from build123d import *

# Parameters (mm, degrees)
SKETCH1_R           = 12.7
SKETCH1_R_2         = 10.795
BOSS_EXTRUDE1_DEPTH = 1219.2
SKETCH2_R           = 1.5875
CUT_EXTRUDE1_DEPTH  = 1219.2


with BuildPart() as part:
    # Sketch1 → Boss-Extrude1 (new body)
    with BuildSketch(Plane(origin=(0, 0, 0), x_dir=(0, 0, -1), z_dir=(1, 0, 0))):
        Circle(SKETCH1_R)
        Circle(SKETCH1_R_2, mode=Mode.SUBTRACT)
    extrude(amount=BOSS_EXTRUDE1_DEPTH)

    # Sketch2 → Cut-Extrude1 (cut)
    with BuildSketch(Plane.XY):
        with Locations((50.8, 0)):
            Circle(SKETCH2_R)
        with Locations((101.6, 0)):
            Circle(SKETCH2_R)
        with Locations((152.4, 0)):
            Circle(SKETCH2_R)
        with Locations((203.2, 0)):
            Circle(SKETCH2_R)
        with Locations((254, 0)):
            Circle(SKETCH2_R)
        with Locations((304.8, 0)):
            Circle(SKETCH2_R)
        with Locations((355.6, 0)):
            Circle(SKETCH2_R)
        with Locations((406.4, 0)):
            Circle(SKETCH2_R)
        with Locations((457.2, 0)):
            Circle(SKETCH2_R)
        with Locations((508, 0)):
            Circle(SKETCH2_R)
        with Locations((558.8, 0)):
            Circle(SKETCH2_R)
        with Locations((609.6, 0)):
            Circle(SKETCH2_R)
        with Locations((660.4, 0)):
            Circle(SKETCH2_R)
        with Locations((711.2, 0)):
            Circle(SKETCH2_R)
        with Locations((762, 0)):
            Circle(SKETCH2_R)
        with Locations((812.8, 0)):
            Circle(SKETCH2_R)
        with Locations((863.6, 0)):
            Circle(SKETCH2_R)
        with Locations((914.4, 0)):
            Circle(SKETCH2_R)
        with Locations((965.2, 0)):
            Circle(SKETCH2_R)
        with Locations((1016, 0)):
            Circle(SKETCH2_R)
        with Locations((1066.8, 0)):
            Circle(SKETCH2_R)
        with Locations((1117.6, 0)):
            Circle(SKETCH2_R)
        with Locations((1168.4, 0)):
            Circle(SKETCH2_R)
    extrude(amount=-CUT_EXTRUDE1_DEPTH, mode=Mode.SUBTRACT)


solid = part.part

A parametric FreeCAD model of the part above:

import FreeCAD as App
import Part
import Sketcher
Q = App.Units.Quantity

doc = App.newDocument("Part")
params = doc.addObject("Spreadsheet::Sheet", "Params")
for row, (alias, value) in enumerate([
    ("sketch1_diameter", "1 in"),
    ("sketch1_diameter2", "0.85 in"),
    ("pad1_length", "48 in"),
    ("sketch2_diameter", "0.125 in"),
    ("pocket1_length", "48 in"),
], start=1):
    params.set(f"A{row}", alias)
    params.set(f"B{row}", "=" + value)
    params.setAlias(f"B{row}", alias)

body = doc.addObject("PartDesign::Body", "Body")

# Sketch on YZ plane
sketch1 = body.newObject("Sketcher::SketchObject", "Sketch")
sketch1.AttachmentSupport = (doc.getObject("YZ_Plane"), [""])
sketch1.MapMode = "FlatFace"
sketch1.addGeometry(Part.Circle(App.Vector(0, 0, 0), App.Vector(0, 0, 1), 13), False)
sketch1.addGeometry(Part.Circle(App.Vector(0, 0, 0), App.Vector(0, 0, 1), 11), False)
sketch1.addConstraint(Sketcher.Constraint("Coincident", 0, 3, -1, 1))
sketch1.addConstraint(Sketcher.Constraint("Coincident", 1, 3, -1, 1))
sketch1.addConstraint(Sketcher.Constraint("Diameter", 0, Q("1 in")))
sketch1.addConstraint(Sketcher.Constraint("Diameter", 1, Q("0.85 in")))
sketch1.setExpression("Constraints[2]", "Params.sketch1_diameter")
sketch1.setExpression("Constraints[3]", "Params.sketch1_diameter2")
pad1 = body.newObject("PartDesign::Pad", "Pad")
pad1.Profile = sketch1
pad1.setExpression("Length", "Params.pad1_length")

# Sketch on XY plane
sketch2 = body.newObject("Sketcher::SketchObject", "Sketch001")
sketch2.AttachmentSupport = (doc.getObject("XY_Plane"), [""])
sketch2.MapMode = "FlatFace"
sketch2.addGeometry(Part.Circle(App.Vector(50.8, 0, 0), App.Vector(0, 0, 1), 1.6), False)
sketch2.addGeometry(Part.Circle(App.Vector(101.6, 0, 0), App.Vector(0, 0, 1), 1.6), False)
sketch2.addGeometry(Part.Circle(App.Vector(152.4, 0, 0), App.Vector(0, 0, 1), 1.6), False)
sketch2.addGeometry(Part.Circle(App.Vector(203.2, 0, 0), App.Vector(0, 0, 1), 1.6), False)
sketch2.addGeometry(Part.Circle(App.Vector(254, 0, 0), App.Vector(0, 0, 1), 1.6), False)
sketch2.addGeometry(Part.Circle(App.Vector(304.8, 0, 0), App.Vector(0, 0, 1), 1.6), False)
sketch2.addGeometry(Part.Circle(App.Vector(355.6, 0, 0), App.Vector(0, 0, 1), 1.6), False)
sketch2.addGeometry(Part.Circle(App.Vector(406.4, 0, 0), App.Vector(0, 0, 1), 1.6), False)
sketch2.addGeometry(Part.Circle(App.Vector(457.2, 0, 0), App.Vector(0, 0, 1), 1.6), False)
sketch2.addGeometry(Part.Circle(App.Vector(508, 0, 0), App.Vector(0, 0, 1), 1.6), False)
sketch2.addGeometry(Part.Circle(App.Vector(558.8, 0, 0), App.Vector(0, 0, 1), 1.6), False)
sketch2.addGeometry(Part.Circle(App.Vector(609.6, 0, 0), App.Vector(0, 0, 1), 1.6), False)
sketch2.addGeometry(Part.Circle(App.Vector(660.4, 0, 0), App.Vector(0, 0, 1), 1.6), False)
sketch2.addGeometry(Part.Circle(App.Vector(711.2, 0, 0), App.Vector(0, 0, 1), 1.6), False)
sketch2.addGeometry(Part.Circle(App.Vector(762, 0, 0), App.Vector(0, 0, 1), 1.6), False)
sketch2.addGeometry(Part.Circle(App.Vector(812.8, 0, 0), App.Vector(0, 0, 1), 1.6), False)
sketch2.addGeometry(Part.Circle(App.Vector(863.6, 0, 0), App.Vector(0, 0, 1), 1.6), False)
sketch2.addGeometry(Part.Circle(App.Vector(914.4, 0, 0), App.Vector(0, 0, 1), 1.6), False)
sketch2.addGeometry(Part.Circle(App.Vector(965.2, 0, 0), App.Vector(0, 0, 1), 1.6), False)
sketch2.addGeometry(Part.Circle(App.Vector(1016, 0, 0), App.Vector(0, 0, 1), 1.6), False)
sketch2.addGeometry(Part.Circle(App.Vector(1066.8, 0, 0), App.Vector(0, 0, 1), 1.6), False)
sketch2.addGeometry(Part.Circle(App.Vector(1117.6, 0, 0), App.Vector(0, 0, 1), 1.6), False)
sketch2.addGeometry(Part.Circle(App.Vector(1168.4, 0, 0), App.Vector(0, 0, 1), 1.6), False)
sketch2.addConstraint(Sketcher.Constraint("Equal", 0, 1))
sketch2.addConstraint(Sketcher.Constraint("Equal", 1, 2))
sketch2.addConstraint(Sketcher.Constraint("Equal", 2, 3))
sketch2.addConstraint(Sketcher.Constraint("Equal", 3, 4))
sketch2.addConstraint(Sketcher.Constraint("Equal", 4, 5))
sketch2.addConstraint(Sketcher.Constraint("Equal", 5, 6))
sketch2.addConstraint(Sketcher.Constraint("Equal", 6, 7))
sketch2.addConstraint(Sketcher.Constraint("Equal", 7, 8))
sketch2.addConstraint(Sketcher.Constraint("Equal", 8, 9))
sketch2.addConstraint(Sketcher.Constraint("Equal", 9, 10))
sketch2.addConstraint(Sketcher.Constraint("Equal", 10, 11))
sketch2.addConstraint(Sketcher.Constraint("Equal", 11, 12))
sketch2.addConstraint(Sketcher.Constraint("Equal", 12, 13))
sketch2.addConstraint(Sketcher.Constraint("Equal", 13, 14))
sketch2.addConstraint(Sketcher.Constraint("Equal", 14, 15))
sketch2.addConstraint(Sketcher.Constraint("Equal", 15, 16))
sketch2.addConstraint(Sketcher.Constraint("Equal", 16, 17))
sketch2.addConstraint(Sketcher.Constraint("Equal", 17, 18))
sketch2.addConstraint(Sketcher.Constraint("Equal", 18, 19))
sketch2.addConstraint(Sketcher.Constraint("Equal", 19, 20))
sketch2.addConstraint(Sketcher.Constraint("Equal", 20, 21))
sketch2.addConstraint(Sketcher.Constraint("Equal", 21, 22))
sketch2.addConstraint(Sketcher.Constraint("PointOnObject", 0, 3, -1))
sketch2.addConstraint(Sketcher.Constraint("PointOnObject", 1, 3, -1))
sketch2.addConstraint(Sketcher.Constraint("PointOnObject", 2, 3, -1))
sketch2.addConstraint(Sketcher.Constraint("PointOnObject", 3, 3, -1))
sketch2.addConstraint(Sketcher.Constraint("PointOnObject", 4, 3, -1))
sketch2.addConstraint(Sketcher.Constraint("PointOnObject", 5, 3, -1))
sketch2.addConstraint(Sketcher.Constraint("PointOnObject", 6, 3, -1))
sketch2.addConstraint(Sketcher.Constraint("PointOnObject", 7, 3, -1))
sketch2.addConstraint(Sketcher.Constraint("PointOnObject", 8, 3, -1))
sketch2.addConstraint(Sketcher.Constraint("PointOnObject", 9, 3, -1))
sketch2.addConstraint(Sketcher.Constraint("PointOnObject", 10, 3, -1))
sketch2.addConstraint(Sketcher.Constraint("PointOnObject", 11, 3, -1))
sketch2.addConstraint(Sketcher.Constraint("PointOnObject", 12, 3, -1))
sketch2.addConstraint(Sketcher.Constraint("PointOnObject", 13, 3, -1))
sketch2.addConstraint(Sketcher.Constraint("PointOnObject", 14, 3, -1))
sketch2.addConstraint(Sketcher.Constraint("PointOnObject", 15, 3, -1))
sketch2.addConstraint(Sketcher.Constraint("PointOnObject", 16, 3, -1))
sketch2.addConstraint(Sketcher.Constraint("PointOnObject", 17, 3, -1))
sketch2.addConstraint(Sketcher.Constraint("PointOnObject", 18, 3, -1))
sketch2.addConstraint(Sketcher.Constraint("PointOnObject", 19, 3, -1))
sketch2.addConstraint(Sketcher.Constraint("PointOnObject", 20, 3, -1))
sketch2.addConstraint(Sketcher.Constraint("PointOnObject", 21, 3, -1))
sketch2.addConstraint(Sketcher.Constraint("PointOnObject", 22, 3, -1))
sketch2.addConstraint(Sketcher.Constraint("Diameter", 0, Q("0.125 in")))
sketch2.addConstraint(Sketcher.Constraint("DistanceX", -1, 1, 0, 3, Q("2 in")))
sketch2.addConstraint(Sketcher.Constraint("DistanceX", -1, 1, 1, 3, Q("4 in")))
sketch2.addConstraint(Sketcher.Constraint("DistanceX", -1, 1, 2, 3, Q("6 in")))
sketch2.addConstraint(Sketcher.Constraint("DistanceX", -1, 1, 3, 3, Q("8 in")))
sketch2.addConstraint(Sketcher.Constraint("DistanceX", -1, 1, 4, 3, Q("10 in")))
sketch2.addConstraint(Sketcher.Constraint("DistanceX", -1, 1, 5, 3, Q("12 in")))
sketch2.addConstraint(Sketcher.Constraint("DistanceX", -1, 1, 6, 3, Q("14 in")))
sketch2.addConstraint(Sketcher.Constraint("DistanceX", -1, 1, 7, 3, Q("16 in")))
sketch2.addConstraint(Sketcher.Constraint("DistanceX", -1, 1, 8, 3, Q("18 in")))
sketch2.addConstraint(Sketcher.Constraint("DistanceX", -1, 1, 9, 3, Q("20 in")))
sketch2.addConstraint(Sketcher.Constraint("DistanceX", -1, 1, 10, 3, Q("22 in")))
sketch2.addConstraint(Sketcher.Constraint("DistanceX", -1, 1, 11, 3, Q("24 in")))
sketch2.addConstraint(Sketcher.Constraint("DistanceX", -1, 1, 12, 3, Q("26 in")))
sketch2.addConstraint(Sketcher.Constraint("DistanceX", -1, 1, 13, 3, Q("28 in")))
sketch2.addConstraint(Sketcher.Constraint("DistanceX", -1, 1, 14, 3, Q("30 in")))
sketch2.addConstraint(Sketcher.Constraint("DistanceX", -1, 1, 15, 3, Q("32 in")))
sketch2.addConstraint(Sketcher.Constraint("DistanceX", -1, 1, 16, 3, Q("34 in")))
sketch2.addConstraint(Sketcher.Constraint("DistanceX", -1, 1, 17, 3, Q("36 in")))
sketch2.addConstraint(Sketcher.Constraint("DistanceX", -1, 1, 18, 3, Q("38 in")))
sketch2.addConstraint(Sketcher.Constraint("DistanceX", -1, 1, 19, 3, Q("40 in")))
sketch2.addConstraint(Sketcher.Constraint("DistanceX", -1, 1, 20, 3, Q("42 in")))
sketch2.addConstraint(Sketcher.Constraint("DistanceX", -1, 1, 21, 3, Q("44 in")))
sketch2.addConstraint(Sketcher.Constraint("DistanceX", -1, 1, 22, 3, Q("46 in")))
sketch2.setExpression("Constraints[45]", "Params.sketch2_diameter")
pocket1 = body.newObject("PartDesign::Pocket", "Pocket")
pocket1.Profile = sketch2
pocket1.setExpression("Length", "Params.pocket1_length")

doc.recompute()
